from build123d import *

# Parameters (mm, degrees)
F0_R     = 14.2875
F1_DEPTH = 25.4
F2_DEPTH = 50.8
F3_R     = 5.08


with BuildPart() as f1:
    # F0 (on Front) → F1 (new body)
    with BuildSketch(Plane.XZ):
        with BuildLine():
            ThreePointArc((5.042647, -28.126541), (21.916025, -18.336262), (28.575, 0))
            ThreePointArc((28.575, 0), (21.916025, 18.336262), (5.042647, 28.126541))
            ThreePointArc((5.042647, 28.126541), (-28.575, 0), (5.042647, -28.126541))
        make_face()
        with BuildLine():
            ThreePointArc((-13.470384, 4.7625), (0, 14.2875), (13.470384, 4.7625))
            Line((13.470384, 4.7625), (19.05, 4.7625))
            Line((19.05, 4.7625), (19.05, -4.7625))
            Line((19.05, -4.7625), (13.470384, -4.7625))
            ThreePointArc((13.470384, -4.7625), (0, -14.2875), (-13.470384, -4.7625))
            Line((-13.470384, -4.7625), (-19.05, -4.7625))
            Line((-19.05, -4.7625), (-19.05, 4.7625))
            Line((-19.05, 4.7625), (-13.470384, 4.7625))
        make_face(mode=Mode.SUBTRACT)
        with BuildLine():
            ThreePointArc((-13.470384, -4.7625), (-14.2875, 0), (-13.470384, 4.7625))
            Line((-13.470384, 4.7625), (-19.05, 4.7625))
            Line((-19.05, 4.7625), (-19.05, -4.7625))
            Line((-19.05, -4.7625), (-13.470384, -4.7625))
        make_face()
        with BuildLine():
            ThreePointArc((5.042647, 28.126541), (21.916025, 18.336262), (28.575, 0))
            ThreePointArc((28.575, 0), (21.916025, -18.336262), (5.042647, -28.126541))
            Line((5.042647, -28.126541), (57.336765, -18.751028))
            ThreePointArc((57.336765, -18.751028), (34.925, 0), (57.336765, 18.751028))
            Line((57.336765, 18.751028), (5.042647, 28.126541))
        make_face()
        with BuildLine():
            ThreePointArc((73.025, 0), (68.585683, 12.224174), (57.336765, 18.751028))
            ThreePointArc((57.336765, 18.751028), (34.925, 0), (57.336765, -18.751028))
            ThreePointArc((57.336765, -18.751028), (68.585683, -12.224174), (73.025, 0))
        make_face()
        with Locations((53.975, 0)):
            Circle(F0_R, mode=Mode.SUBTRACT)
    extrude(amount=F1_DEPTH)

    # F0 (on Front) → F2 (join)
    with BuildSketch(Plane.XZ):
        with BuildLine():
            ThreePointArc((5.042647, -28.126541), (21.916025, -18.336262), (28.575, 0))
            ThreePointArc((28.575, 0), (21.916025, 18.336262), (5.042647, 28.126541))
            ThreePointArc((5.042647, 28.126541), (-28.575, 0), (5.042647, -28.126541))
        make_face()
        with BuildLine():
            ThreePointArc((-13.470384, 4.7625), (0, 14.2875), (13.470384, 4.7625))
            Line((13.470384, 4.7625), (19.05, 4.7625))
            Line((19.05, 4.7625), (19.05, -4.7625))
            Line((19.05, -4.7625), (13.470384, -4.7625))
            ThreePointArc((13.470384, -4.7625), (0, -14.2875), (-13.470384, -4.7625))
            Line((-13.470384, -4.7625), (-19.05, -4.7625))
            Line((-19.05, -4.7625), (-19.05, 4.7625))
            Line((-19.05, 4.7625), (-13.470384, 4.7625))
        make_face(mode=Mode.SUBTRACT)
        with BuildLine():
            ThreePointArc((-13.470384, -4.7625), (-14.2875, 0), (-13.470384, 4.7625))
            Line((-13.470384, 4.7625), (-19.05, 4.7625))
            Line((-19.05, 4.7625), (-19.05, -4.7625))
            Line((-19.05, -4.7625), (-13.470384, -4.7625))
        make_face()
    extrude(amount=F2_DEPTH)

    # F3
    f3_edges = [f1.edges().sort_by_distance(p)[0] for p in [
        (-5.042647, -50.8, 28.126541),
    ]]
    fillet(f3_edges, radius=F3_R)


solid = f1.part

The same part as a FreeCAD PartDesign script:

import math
import FreeCAD as App
import Part
import Sketcher
from FreeCAD import Vector
Q = App.Units.Quantity


def edges_at(feature, points):
    """Names of the edges that pass closest to the given points."""
    edges = feature.Shape.Edges
    near = lambda p: min(range(len(edges)), key=lambda i: edges[i].distToShape(Part.Vertex(*p))[0])
    return sorted({f"Edge{near(p) + 1}" for p in points})

doc = App.newDocument("Part")
body = doc.addObject("PartDesign::Body", "Body")

# Sketch on XZ plane
sketch1 = body.newObject("Sketcher::SketchObject", "Sketch")
sketch1.AttachmentSupport = (doc.getObject("XZ_Plane"), [""])
sketch1.MapMode = "FlatFace"
sketch1.addGeometry([
    Part.ArcOfCircle(Part.Circle(Vector(0, 0, 0), Vector(0, 0, 1), 29), math.radians(80), math.radians(280)),  # 0
    Part.LineSegment(Vector(5, -28, 0), Vector(57, -19, 0)),  # 1
    Part.ArcOfCircle(Part.Circle(Vector(54, 0, 0), Vector(0, 0, 1), 19), math.radians(-80), math.radians(0)),  # 2
    Part.ArcOfCircle(Part.Circle(Vector(54, 0, 0), Vector(0, 0, 1), 19), math.radians(0), math.radians(80)),  # 3
    Part.LineSegment(Vector(57, 19, 0), Vector(5, 28, 0)),  # 4
    Part.ArcOfCircle(Part.Circle(Vector(0, 0, 0), Vector(0, 0, 1), 14), math.radians(-161), math.radians(-19)),  # 5
    Part.ArcOfCircle(Part.Circle(Vector(0, 0, 0), Vector(0, 0, 1), 14), math.radians(161), math.radians(199)),  # 6
    Part.ArcOfCircle(Part.Circle(Vector(0, 0, 0), Vector(0, 0, 1), 14), math.radians(19), math.radians(161)),  # 7
    Part.LineSegment(Vector(13, 5, 0), Vector(19, 5, 0)),  # 8
    Part.LineSegment(Vector(19, 5, 0), Vector(19, -5, 0)),  # 9
    Part.LineSegment(Vector(19, -5, 0), Vector(13, -5, 0)),  # 10
    Part.Circle(Vector(54, 0, 0), Vector(0, 0, 1), 14),  # 11
], False)
sketch1.addConstraint([
    Sketcher.Constraint("Tangent", 0, 2, 1, 1),
    Sketcher.Constraint("Tangent", 1, 2, 2, 1),
    Sketcher.Constraint("Tangent", 2, 2, 3, 1),
    Sketcher.Constraint("Tangent", 3, 2, 4, 1),
    Sketcher.Constraint("Tangent", 4, 2, 0, 1),
    Sketcher.Constraint("Tangent", 5, 1, 6, 2),
    Sketcher.Constraint("Tangent", 6, 1, 7, 2),
    Sketcher.Constraint("Coincident", 7, 1, 8, 1),
    Sketcher.Constraint("Coincident", 8, 2, 9, 1),
    Sketcher.Constraint("Coincident", 9, 2, 10, 1),
    Sketcher.Constraint("Coincident", 10, 2, 5, 2),
    Sketcher.Constraint("Horizontal", 8),
    Sketcher.Constraint("Vertical", 9),
    Sketcher.Constraint("Horizontal", 10),
    Sketcher.Constraint("Coincident", 0, 3, -1, 1),
    Sketcher.Constraint("Coincident", 5, 3, -1, 1),
    Sketcher.Constraint("Coincident", 7, 3, -1, 1),
    Sketcher.Constraint("Coincident", 11, 3, 2, 3),
    Sketcher.Constraint("Equal", 2, 3),
    Sketcher.Constraint("Equal", 7, 11),
    Sketcher.Constraint("PointOnObject", 2, 3, -1),
    Sketcher.Constraint("PointOnObject", 2, 2, -1),
    Sketcher.Constraint("Horizontal", 6, 1, 7, 1),
    Sketcher.Constraint("Horizontal", 5, 1, 9, 2),
    Sketcher.Constraint("Vertical", 5, 1, 6, 1),
    Sketcher.Constraint("Radius", 2, Q("0.7500001 in")),
    Sketcher.Constraint("Diameter", 11, Q("1.125 in")),
    Sketcher.Constraint("Radius", 0, Q("1.125 in")),
    Sketcher.Constraint("DistanceY", 9, 2, 9, 1, Q("0.375 in")),
    Sketcher.Constraint("DistanceX", -1, 1, 8, 2, Q("0.75 in")),
    Sketcher.Constraint("DistanceX", -1, 1, 2, 3, Q("2.1249999 in")),
])
pad1 = body.newObject("PartDesign::Pad", "Pad")
pad1.Profile = sketch1
pad1.Length = Q("1 in")

# Sketch on XZ plane
sketch2 = body.newObject("Sketcher::SketchObject", "Sketch001")
sketch2.AttachmentSupport = (doc.getObject("XZ_Plane"), [""])
sketch2.MapMode = "FlatFace"
sketch2.addGeometry([
    Part.ArcOfCircle(Part.Circle(Vector(0, 0, 0), Vector(0, 0, 1), 29), math.radians(-80), math.radians(0)),  # 0
    Part.ArcOfCircle(Part.Circle(Vector(0, 0, 0), Vector(0, 0, 1), 29), math.radians(0), math.radians(80)),  # 1
    Part.ArcOfCircle(Part.Circle(Vector(0, 0, 0), Vector(0, 0, 1), 29), math.radians(80), math.radians(280)),  # 2
    Part.ArcOfCircle(Part.Circle(Vector(0, 0, 0), Vector(0, 0, 1), 14), math.radians(-161), math.radians(-19)),  # 3
    Part.ArcOfCircle(Part.Circle(Vector(0, 0, 0), Vector(0, 0, 1), 14), math.radians(161), math.radians(199)),  # 4
    Part.ArcOfCircle(Part.Circle(Vector(0, 0, 0), Vector(0, 0, 1), 14), math.radians(19), math.radians(161)),  # 5
    Part.LineSegment(Vector(13, 5, 0), Vector(19, 5, 0)),  # 6
    Part.LineSegment(Vector(19, 5, 0), Vector(19, -5, 0)),  # 7
    Part.LineSegment(Vector(19, -5, 0), Vector(13, -5, 0)),  # 8
], False)
sketch2.addConstraint([
    Sketcher.Constraint("Tangent", 0, 2, 1, 1),
    Sketcher.Constraint("Tangent", 1, 2, 2, 1),
    Sketcher.Constraint("Tangent", 2, 2, 0, 1),
    Sketcher.Constraint("Tangent", 3, 1, 4, 2),
    Sketcher.Constraint("Tangent", 4, 1, 5, 2),
    Sketcher.Constraint("Coincident", 5, 1, 6, 1),
    Sketcher.Constraint("Coincident", 6, 2, 7, 1),
    Sketcher.Constraint("Coincident", 7, 2, 8, 1),
    Sketcher.Constraint("Coincident", 8, 2, 3, 2),
    Sketcher.Constraint("Horizontal", 6),
    Sketcher.Constraint("Vertical", 7),
    Sketcher.Constraint("Horizontal", 8),
    Sketcher.Constraint("Coincident", 0, 3, -1, 1),
    Sketcher.Constraint("Coincident", 3, 3, -1, 1),
    Sketcher.Constraint("Coincident", 5, 3, -1, 1),
    Sketcher.Constraint("PointOnObject", 0, 2, -1),
    Sketcher.Constraint("Horizontal", 4, 1, 5, 1),
    Sketcher.Constraint("Horizontal", 3, 1, 7, 2),
    Sketcher.Constraint("Vertical", 1, 2, 2, 2),
    Sketcher.Constraint("Vertical", 3, 1, 4, 1),
    Sketcher.Constraint("Radius", 0, Q("1.1249999 in")),
    Sketcher.Constraint("Radius", 3, Q("0.5625 in")),
    Sketcher.Constraint("DistanceY", 7, 2, 7, 1, Q("0.375 in")),
    Sketcher.Constraint("DistanceX", -1, 1, 6, 2, Q("0.75 in")),
    Sketcher.Constraint("DistanceY", -1, 1, 1, 2, Q("28.126541 mm")),
])
pad2 = body.newObject("PartDesign::Pad", "Pad001")
pad2.Profile = sketch2
pad2.Length = Q("2 in")
doc.recompute()

fillet = body.newObject("PartDesign::Fillet", "Fillet")
fillet.Base = (pad2, edges_at(pad2, [(-28.575, -50.8, 0)]))
fillet.Radius = Q("0.2 in")

doc.recompute()
